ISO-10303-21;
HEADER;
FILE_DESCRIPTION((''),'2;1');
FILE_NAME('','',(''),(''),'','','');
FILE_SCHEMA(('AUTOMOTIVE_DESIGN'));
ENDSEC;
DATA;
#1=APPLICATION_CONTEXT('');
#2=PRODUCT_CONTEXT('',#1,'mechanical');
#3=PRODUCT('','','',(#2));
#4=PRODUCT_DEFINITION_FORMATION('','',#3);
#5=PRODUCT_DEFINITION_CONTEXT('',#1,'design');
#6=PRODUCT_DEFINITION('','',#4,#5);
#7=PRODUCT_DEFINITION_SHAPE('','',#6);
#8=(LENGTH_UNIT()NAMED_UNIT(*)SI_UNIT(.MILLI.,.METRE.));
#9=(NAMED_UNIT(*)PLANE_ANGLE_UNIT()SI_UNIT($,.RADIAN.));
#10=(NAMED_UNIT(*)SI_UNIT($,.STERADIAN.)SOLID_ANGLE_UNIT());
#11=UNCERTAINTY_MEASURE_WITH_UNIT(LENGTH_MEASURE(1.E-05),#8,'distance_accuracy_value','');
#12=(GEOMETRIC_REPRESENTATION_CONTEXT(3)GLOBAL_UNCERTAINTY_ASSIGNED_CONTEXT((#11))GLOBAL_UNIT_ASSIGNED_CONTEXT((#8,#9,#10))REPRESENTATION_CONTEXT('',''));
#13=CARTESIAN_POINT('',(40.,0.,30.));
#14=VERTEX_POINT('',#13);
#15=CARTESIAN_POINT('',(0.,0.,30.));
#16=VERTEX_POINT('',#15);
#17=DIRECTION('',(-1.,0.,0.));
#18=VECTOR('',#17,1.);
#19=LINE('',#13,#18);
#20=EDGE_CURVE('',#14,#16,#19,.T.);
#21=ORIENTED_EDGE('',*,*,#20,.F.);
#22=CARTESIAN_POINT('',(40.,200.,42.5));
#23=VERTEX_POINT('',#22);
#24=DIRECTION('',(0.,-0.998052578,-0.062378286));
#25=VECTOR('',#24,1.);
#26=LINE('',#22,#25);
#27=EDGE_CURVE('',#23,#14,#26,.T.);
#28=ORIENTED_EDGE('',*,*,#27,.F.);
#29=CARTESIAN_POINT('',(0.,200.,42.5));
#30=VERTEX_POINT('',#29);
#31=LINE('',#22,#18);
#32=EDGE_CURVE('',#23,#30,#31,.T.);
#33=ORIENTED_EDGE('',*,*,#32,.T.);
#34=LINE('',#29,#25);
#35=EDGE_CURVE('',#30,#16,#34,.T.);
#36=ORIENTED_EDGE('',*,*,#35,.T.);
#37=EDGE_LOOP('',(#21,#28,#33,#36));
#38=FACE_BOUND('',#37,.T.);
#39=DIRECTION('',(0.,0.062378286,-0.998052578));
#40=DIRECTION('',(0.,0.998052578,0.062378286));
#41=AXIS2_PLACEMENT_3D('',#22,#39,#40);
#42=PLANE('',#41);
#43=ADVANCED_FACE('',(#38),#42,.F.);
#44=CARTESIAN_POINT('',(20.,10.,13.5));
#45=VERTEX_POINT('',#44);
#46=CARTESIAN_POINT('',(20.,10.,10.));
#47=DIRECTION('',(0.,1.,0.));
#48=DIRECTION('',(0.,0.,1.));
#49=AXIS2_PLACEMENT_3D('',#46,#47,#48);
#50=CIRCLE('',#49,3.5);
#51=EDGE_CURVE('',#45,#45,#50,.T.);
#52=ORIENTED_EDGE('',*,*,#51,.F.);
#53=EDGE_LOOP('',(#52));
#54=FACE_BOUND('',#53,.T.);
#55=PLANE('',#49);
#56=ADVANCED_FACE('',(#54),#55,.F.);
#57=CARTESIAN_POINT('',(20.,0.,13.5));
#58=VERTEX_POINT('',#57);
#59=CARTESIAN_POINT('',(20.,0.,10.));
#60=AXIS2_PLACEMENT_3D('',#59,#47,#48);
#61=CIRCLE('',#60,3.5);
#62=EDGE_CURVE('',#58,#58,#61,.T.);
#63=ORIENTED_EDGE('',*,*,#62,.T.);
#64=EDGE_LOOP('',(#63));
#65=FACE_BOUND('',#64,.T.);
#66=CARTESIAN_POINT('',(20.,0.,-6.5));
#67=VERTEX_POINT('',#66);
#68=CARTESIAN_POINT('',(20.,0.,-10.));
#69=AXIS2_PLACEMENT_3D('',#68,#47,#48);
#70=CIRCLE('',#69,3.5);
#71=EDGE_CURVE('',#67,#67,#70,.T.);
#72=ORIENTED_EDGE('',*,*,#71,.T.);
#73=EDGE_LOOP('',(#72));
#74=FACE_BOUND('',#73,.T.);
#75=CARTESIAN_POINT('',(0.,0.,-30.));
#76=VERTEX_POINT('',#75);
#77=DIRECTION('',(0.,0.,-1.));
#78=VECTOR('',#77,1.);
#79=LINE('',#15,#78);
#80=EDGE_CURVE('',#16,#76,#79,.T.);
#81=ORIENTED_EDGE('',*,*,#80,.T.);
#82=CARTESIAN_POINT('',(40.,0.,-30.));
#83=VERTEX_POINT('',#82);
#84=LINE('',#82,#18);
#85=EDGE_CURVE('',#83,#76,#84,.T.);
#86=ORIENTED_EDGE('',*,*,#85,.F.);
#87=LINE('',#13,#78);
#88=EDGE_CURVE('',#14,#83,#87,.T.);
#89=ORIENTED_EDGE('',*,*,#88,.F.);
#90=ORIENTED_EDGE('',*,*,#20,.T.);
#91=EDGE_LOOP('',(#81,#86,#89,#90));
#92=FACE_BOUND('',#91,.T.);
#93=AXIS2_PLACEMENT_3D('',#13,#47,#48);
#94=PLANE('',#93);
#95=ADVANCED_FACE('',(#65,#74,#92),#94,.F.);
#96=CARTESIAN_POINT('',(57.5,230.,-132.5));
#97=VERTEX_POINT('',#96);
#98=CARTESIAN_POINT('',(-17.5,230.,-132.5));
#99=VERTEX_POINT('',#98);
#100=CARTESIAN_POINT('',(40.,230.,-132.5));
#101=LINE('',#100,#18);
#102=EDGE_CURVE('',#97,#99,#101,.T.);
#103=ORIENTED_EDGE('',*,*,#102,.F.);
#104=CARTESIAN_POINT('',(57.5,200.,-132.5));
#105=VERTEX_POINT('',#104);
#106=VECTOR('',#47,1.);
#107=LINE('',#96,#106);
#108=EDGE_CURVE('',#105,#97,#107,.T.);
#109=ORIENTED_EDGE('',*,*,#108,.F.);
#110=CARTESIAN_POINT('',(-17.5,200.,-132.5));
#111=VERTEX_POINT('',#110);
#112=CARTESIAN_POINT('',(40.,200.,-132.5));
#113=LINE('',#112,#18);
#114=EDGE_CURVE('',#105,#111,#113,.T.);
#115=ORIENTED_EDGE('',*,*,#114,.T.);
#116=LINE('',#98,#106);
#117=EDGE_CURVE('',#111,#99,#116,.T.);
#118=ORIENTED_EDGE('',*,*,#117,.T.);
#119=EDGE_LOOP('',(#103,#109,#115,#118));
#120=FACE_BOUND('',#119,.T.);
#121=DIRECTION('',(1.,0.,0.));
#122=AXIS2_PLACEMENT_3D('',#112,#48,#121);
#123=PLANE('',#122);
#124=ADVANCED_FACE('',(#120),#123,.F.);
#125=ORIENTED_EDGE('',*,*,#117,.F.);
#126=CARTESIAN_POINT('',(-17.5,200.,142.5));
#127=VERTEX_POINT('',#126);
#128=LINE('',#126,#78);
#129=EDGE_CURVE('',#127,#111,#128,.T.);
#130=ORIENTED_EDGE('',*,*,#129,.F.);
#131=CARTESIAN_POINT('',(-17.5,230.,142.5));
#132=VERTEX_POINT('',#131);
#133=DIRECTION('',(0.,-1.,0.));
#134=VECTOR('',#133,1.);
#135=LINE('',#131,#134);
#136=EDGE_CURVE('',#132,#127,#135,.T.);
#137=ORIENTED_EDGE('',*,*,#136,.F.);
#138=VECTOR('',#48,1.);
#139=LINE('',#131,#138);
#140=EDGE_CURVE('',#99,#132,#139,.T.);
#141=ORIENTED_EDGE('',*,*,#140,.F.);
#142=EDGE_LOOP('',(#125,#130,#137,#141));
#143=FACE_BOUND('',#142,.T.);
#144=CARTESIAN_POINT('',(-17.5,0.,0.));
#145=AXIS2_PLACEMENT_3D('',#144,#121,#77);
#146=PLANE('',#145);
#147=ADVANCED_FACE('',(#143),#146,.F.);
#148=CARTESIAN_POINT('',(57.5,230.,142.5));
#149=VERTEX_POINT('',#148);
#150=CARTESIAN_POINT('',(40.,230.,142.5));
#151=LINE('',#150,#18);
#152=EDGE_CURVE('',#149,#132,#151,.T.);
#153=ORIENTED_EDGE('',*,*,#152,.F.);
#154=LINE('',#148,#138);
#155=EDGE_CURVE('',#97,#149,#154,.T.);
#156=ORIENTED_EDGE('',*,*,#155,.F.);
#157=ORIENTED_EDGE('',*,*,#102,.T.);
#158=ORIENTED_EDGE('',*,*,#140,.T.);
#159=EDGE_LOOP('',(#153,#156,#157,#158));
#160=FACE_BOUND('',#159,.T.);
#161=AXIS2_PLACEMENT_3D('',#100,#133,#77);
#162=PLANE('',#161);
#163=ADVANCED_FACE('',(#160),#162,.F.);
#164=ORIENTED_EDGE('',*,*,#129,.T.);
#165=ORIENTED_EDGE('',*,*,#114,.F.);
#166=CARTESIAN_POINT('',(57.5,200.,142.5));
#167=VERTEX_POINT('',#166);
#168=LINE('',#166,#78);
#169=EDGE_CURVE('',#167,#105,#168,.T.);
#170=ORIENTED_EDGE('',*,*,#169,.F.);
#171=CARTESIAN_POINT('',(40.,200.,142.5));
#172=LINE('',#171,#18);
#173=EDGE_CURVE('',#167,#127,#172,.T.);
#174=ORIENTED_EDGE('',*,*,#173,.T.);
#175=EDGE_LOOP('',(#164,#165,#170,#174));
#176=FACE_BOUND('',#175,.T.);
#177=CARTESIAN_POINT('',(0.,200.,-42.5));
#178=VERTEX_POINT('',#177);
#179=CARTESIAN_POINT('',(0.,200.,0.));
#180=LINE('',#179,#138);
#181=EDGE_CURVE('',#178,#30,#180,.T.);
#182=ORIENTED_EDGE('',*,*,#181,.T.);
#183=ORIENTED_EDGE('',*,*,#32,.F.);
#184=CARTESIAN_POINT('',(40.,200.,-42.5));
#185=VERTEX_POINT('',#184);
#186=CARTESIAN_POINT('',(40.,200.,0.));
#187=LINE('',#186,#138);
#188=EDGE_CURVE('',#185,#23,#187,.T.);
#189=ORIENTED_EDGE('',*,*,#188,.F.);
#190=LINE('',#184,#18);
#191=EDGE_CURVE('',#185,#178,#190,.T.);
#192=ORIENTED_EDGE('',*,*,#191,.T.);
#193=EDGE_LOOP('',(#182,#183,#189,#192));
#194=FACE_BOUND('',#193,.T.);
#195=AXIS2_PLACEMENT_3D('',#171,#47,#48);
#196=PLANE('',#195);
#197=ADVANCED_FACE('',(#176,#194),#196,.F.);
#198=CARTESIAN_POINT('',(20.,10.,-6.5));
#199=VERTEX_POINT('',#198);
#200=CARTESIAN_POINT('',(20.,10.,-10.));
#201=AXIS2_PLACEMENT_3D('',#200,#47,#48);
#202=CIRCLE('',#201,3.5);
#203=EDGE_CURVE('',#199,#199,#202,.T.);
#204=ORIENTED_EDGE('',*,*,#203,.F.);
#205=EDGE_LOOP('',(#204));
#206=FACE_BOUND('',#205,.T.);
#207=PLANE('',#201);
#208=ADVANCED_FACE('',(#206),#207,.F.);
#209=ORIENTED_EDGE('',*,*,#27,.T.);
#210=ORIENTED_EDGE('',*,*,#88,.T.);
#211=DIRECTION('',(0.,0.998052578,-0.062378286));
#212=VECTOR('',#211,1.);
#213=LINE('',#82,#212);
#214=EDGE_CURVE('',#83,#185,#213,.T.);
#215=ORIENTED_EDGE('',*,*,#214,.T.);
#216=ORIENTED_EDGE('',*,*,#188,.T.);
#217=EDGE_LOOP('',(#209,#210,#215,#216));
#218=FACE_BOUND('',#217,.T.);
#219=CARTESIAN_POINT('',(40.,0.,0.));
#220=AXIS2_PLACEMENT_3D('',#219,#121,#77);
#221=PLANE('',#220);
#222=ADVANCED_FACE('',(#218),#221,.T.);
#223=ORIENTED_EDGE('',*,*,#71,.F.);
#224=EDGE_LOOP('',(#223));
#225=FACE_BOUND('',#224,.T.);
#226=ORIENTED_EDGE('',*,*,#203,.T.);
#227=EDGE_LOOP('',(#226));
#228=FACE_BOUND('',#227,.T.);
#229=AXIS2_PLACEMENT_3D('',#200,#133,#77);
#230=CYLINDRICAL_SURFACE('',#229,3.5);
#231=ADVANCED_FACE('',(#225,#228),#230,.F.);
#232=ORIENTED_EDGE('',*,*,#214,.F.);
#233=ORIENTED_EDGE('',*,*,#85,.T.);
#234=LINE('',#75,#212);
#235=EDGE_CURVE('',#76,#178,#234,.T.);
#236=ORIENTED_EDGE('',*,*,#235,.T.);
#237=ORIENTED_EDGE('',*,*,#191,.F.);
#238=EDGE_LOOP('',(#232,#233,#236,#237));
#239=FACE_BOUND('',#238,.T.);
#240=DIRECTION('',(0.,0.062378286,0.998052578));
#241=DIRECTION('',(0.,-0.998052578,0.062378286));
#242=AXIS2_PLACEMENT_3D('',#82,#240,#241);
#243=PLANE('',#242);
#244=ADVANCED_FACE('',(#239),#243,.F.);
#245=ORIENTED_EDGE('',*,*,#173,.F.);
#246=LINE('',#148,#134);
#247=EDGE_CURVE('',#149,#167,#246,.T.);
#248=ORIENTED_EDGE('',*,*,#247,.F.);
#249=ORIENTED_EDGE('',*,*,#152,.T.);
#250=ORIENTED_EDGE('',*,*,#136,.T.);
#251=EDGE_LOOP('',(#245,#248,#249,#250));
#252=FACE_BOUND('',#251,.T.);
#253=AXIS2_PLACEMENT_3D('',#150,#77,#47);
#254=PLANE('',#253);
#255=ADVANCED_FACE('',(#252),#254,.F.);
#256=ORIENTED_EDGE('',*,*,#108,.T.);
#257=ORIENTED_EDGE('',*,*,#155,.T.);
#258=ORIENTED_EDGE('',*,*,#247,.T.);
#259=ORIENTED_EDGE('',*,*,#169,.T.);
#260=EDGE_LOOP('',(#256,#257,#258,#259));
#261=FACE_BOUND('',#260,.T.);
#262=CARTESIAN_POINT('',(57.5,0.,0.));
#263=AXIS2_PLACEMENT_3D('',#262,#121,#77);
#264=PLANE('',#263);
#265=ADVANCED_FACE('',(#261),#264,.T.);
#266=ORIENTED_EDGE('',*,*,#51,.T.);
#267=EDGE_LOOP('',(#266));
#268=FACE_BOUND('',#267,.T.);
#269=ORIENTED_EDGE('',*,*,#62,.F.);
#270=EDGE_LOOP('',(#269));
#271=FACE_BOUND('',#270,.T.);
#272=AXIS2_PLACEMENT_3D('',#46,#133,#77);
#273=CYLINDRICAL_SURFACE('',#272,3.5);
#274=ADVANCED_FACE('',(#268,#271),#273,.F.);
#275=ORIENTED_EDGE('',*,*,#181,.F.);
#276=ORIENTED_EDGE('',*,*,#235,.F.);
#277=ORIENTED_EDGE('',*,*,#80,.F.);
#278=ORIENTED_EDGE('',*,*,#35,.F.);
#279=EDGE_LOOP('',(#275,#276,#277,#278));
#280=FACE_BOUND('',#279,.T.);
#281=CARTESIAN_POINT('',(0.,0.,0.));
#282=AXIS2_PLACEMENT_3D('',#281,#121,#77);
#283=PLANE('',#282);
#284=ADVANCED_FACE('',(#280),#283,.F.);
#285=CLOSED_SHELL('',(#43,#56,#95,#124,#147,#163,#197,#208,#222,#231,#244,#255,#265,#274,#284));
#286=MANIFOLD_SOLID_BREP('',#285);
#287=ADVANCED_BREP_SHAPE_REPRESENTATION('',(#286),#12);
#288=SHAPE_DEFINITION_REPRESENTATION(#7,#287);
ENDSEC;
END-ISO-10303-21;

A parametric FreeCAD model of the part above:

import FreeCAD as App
import Part
import Sketcher

V = App.Vector

doc = App.newDocument("Part")
body = doc.addObject("PartDesign::Body", "Body")

# Sketch on YZ plane
sketch1 = body.newObject("Sketcher::SketchObject", "Sketch")
sketch1.AttachmentSupport = (doc.getObject("YZ_Plane"), [""])
sketch1.MapMode = "FlatFace"
sketch1.addGeometry([
    Part.LineSegment(V(0, 30, 0), V(0, -30, 0)),  # 0
    Part.LineSegment(V(0, -30, 0), V(200, -42, 0)),  # 1
    Part.LineSegment(V(200, -42, 0), V(200, -132, 0)),  # 2
    Part.LineSegment(V(200, -132, 0), V(230, -132, 0)),  # 3
    Part.LineSegment(V(230, -132, 0), V(230, 142, 0)),  # 4
    Part.LineSegment(V(230, 142, 0), V(200, 142, 0)),  # 5
    Part.LineSegment(V(200, 142, 0), V(200, 42, 0)),  # 6
    Part.LineSegment(V(200, 42, 0), V(0, 30, 0)),  # 7
], False)
sketch1.addConstraint([
    Sketcher.Constraint("Coincident", 0, 2, 1, 1),
    Sketcher.Constraint("Coincident", 1, 2, 2, 1),
    Sketcher.Constraint("Coincident", 2, 2, 3, 1),
    Sketcher.Constraint("Coincident", 3, 2, 4, 1),
    Sketcher.Constraint("Coincident", 4, 2, 5, 1),
    Sketcher.Constraint("Coincident", 5, 2, 6, 1),
    Sketcher.Constraint("Coincident", 6, 2, 7, 1),
    Sketcher.Constraint("Coincident", 7, 2, 0, 1),
    Sketcher.Constraint("Vertical", 0),
    Sketcher.Constraint("Vertical", 2),
    Sketcher.Constraint("Horizontal", 3),
    Sketcher.Constraint("Vertical", 4),
    Sketcher.Constraint("Horizontal", 5),
    Sketcher.Constraint("Vertical", 6),
    Sketcher.Constraint("Symmetric", 0, 2, 7, 2, -1, 1),
    Sketcher.Constraint("Symmetric", 1, 2, 6, 2, -1),
    Sketcher.Constraint("DistanceX", 3, 1, 3, 2, 30.0),
    Sketcher.Constraint("DistanceY", 0, 2, 0, 1, 60.0),
    Sketcher.Constraint("DistanceY", 2, 2, 2, 1, 90.0),
    Sketcher.Constraint("DistanceY", 4, 1, 4, 2, 275.0),
    Sketcher.Constraint("DistanceY", 6, 2, 6, 1, 100.0),
    Sketcher.Constraint("DistanceX", -1, 1, 1, 2, 200.0),
])
pad1 = body.newObject("PartDesign::Pad", "Pad")
pad1.Profile = sketch1
pad1.Length = 40

# Sketch on YZ plane
sketch2 = body.newObject("Sketcher::SketchObject", "Sketch001")
sketch2.AttachmentSupport = (doc.getObject("YZ_Plane"), [""])
sketch2.MapMode = "FlatFace"
sketch2.AttachmentOffset = App.Placement(V(0, 0, -17.5), App.Rotation())
sketch2.addGeometry([
    Part.LineSegment(V(230, 142, 0), V(200, 142, 0)),
    Part.LineSegment(V(200, 142, 0), V(200, -132, 0)),
    Part.LineSegment(V(200, -132, 0), V(230, -132, 0)),
    Part.LineSegment(V(230, -132, 0), V(230, 142, 0)),
], False)
sketch2.addConstraint([
    Sketcher.Constraint("Coincident", 0, 2, 1, 1),
    Sketcher.Constraint("Coincident", 1, 2, 2, 1),
    Sketcher.Constraint("Coincident", 2, 2, 3, 1),
    Sketcher.Constraint("Coincident", 3, 2, 0, 1),
    Sketcher.Constraint("Horizontal", 0),
    Sketcher.Constraint("Vertical", 1),
    Sketcher.Constraint("Horizontal", 2),
    Sketcher.Constraint("Vertical", 3),
    Sketcher.Constraint("DistanceX", 0, 2, 0, 1, 30.0),
    Sketcher.Constraint("DistanceY", 1, 2, 1, 1, 275.0),
    Sketcher.Constraint("DistanceX", -1, 1, 0, 2, 200.0),
    Sketcher.Constraint("DistanceY", -1, 1, 0, 2, 142.5),
])
pad2 = body.newObject("PartDesign::Pad", "Pad001")
pad2.Profile = sketch2
pad2.Length = 75

# Sketch on XZ plane
sketch3 = body.newObject("Sketcher::SketchObject", "Sketch002")
sketch3.AttachmentSupport = (doc.getObject("XZ_Plane"), [""])
sketch3.MapMode = "FlatFace"
sketch3.addGeometry([
    Part.Circle(V(20, 10, 0), V(0, 0, 1), 3.5),
    Part.Circle(V(20, -10, 0), V(0, 0, 1), 3.5),
], False)
sketch3.addConstraint([
    Sketcher.Constraint("Equal", 0, 1),
    Sketcher.Constraint("Symmetric", 0, 3, 1, 3, -1),
    Sketcher.Constraint("Diameter", 0, 7.0),
    Sketcher.Constraint("DistanceX", -1, 1, 0, 3, 20.0),
    Sketcher.Constraint("DistanceY", -1, 1, 0, 3, 10.0),
])
pocket1 = body.newObject("PartDesign::Pocket", "Pocket")
pocket1.Profile = sketch3
pocket1.Length = 10

doc.recompute()
